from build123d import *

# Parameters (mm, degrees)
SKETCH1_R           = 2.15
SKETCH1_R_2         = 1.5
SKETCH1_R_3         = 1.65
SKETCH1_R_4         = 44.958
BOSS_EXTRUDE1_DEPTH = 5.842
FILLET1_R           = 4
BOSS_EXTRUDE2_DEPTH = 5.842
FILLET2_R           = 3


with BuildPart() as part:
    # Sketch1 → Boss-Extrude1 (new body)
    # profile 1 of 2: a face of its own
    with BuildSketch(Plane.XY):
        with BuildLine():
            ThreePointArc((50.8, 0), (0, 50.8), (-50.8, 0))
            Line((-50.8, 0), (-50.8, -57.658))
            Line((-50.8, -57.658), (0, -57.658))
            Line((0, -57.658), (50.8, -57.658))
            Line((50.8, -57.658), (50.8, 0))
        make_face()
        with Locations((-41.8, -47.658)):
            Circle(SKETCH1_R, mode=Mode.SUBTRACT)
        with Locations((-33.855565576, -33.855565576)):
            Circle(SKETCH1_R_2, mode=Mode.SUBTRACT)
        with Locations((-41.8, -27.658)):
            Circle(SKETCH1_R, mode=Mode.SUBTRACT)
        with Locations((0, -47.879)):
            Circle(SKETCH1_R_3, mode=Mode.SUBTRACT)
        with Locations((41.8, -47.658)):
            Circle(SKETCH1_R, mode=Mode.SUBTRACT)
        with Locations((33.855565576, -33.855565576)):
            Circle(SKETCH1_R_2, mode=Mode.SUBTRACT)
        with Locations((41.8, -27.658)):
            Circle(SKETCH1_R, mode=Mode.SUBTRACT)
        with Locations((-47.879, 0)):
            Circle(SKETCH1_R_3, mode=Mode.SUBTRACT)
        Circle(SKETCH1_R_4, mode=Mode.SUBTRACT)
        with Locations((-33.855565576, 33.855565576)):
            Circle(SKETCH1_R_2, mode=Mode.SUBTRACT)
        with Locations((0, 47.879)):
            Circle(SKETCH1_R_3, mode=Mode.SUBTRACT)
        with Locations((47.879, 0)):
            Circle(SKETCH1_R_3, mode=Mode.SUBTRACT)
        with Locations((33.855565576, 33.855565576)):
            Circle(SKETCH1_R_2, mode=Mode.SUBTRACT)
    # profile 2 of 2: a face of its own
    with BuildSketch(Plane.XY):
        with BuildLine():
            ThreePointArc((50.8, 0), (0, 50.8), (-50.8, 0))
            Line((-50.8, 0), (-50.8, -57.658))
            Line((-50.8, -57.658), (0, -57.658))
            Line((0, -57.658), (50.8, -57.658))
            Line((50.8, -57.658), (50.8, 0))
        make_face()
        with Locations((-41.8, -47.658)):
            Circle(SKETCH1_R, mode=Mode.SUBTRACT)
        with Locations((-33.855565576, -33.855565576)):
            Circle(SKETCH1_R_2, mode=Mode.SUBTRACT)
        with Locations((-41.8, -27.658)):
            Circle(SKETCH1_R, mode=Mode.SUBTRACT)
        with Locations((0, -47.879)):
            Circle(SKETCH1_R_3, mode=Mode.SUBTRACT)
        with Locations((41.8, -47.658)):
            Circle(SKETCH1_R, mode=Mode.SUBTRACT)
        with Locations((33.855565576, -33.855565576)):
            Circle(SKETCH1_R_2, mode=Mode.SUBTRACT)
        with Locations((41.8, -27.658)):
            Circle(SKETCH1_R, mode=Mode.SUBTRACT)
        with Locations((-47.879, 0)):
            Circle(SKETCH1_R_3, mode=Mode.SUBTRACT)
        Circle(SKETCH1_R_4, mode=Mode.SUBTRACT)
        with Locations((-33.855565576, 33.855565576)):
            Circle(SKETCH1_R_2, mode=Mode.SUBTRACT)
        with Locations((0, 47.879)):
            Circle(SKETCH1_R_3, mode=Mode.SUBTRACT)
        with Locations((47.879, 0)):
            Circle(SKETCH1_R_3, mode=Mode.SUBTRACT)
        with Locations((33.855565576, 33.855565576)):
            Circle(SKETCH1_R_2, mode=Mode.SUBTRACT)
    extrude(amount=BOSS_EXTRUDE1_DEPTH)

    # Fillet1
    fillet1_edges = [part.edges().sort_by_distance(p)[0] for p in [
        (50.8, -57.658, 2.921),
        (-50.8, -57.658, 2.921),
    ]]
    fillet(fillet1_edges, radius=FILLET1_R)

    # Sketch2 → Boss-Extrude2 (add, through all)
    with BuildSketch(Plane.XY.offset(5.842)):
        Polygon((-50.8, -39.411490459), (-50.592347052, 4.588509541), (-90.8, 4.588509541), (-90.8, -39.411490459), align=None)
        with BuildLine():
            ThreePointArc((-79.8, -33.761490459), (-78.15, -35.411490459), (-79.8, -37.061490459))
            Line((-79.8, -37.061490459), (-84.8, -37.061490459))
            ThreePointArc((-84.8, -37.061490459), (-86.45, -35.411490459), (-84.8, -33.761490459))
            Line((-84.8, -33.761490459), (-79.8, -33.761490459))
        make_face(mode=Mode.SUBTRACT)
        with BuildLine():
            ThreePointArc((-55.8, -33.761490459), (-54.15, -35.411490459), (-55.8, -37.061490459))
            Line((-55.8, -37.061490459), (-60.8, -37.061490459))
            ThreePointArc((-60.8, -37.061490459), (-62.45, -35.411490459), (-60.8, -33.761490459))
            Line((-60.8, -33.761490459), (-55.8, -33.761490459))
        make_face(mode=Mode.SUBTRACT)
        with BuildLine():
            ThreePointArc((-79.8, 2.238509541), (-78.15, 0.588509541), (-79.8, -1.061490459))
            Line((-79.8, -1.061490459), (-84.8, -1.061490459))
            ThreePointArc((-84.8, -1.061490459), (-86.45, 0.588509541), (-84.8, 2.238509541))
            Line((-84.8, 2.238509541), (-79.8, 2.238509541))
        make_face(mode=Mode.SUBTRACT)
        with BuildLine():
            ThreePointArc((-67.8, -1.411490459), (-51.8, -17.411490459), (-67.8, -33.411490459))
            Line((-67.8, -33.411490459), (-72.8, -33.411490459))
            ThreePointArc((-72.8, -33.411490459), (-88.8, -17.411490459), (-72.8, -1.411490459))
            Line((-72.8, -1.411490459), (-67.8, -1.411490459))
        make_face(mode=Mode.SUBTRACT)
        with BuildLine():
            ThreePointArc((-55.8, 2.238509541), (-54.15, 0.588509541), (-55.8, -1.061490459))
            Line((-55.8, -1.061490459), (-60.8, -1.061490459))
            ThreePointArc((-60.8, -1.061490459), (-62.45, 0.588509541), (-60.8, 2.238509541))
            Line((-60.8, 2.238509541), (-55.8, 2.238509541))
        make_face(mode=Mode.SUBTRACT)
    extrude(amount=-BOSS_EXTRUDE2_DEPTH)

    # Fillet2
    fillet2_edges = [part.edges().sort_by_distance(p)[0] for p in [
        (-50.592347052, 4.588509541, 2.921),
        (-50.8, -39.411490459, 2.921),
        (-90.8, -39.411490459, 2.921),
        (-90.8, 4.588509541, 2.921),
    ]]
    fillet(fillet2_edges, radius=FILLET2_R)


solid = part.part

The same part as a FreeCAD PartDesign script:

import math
import FreeCAD as App
import Part
import Sketcher
Q = App.Units.Quantity


def edges_at(feature, points):
    """Names of the edges that pass closest to the given points."""
    edges = feature.Shape.Edges
    near = lambda p: min(range(len(edges)), key=lambda i: edges[i].distToShape(Part.Vertex(*p))[0])
    return sorted({f"Edge{near(p) + 1}" for p in points})

doc = App.newDocument("Part")
body = doc.addObject("PartDesign::Body", "Body")

# Sketch on XY plane
sketch1 = body.newObject("Sketcher::SketchObject", "Sketch")
sketch1.AttachmentSupport = (doc.getObject("XY_Plane"), [""])
sketch1.MapMode = "FlatFace"
sketch1.addGeometry([
    Part.ArcOfCircle(Part.Circle(App.Vector(0, 0, 0), App.Vector(0, 0, 1), 50.8), math.radians(0), math.radians(180)),  # 0
    Part.LineSegment(App.Vector(-50.8, 0, 0), App.Vector(-50.8, -57.7, 0)),  # 1
    Part.LineSegment(App.Vector(-50.8, -57.7, 0), App.Vector(50.8, -57.7, 0)),  # 2
    Part.LineSegment(App.Vector(50.8, -57.7, 0), App.Vector(50.8, 0, 0)),  # 3
    Part.Circle(App.Vector(-41.8, -47.7, 0), App.Vector(0, 0, 1), 2.1),  # 4
    Part.Circle(App.Vector(-41.8, -27.7, 0), App.Vector(0, 0, 1), 2.1),  # 5
    Part.Circle(App.Vector(-33.9, -33.9, 0), App.Vector(0, 0, 1), 1.5),  # 6
    Part.Circle(App.Vector(0, -47.9, 0), App.Vector(0, 0, 1), 1.6),  # 7
    Part.Circle(App.Vector(41.8, -47.7, 0), App.Vector(0, 0, 1), 2.1),  # 8
    Part.Circle(App.Vector(33.9, -33.9, 0), App.Vector(0, 0, 1), 1.5),  # 9
    Part.Circle(App.Vector(41.8, -27.7, 0), App.Vector(0, 0, 1), 2.1),  # 10
    Part.Circle(App.Vector(-47.9, 0, 0), App.Vector(0, 0, 1), 1.6),  # 11
    Part.Circle(App.Vector(-33.9, 33.9, 0), App.Vector(0, 0, 1), 1.5),  # 12
    Part.Circle(App.Vector(0, 0, 0), App.Vector(0, 0, 1), 45),  # 13
    Part.Circle(App.Vector(47.9, 0, 0), App.Vector(0, 0, 1), 1.6),  # 14
    Part.Circle(App.Vector(0, 47.9, 0), App.Vector(0, 0, 1), 1.6),  # 15
    Part.Circle(App.Vector(33.9, 33.9, 0), App.Vector(0, 0, 1), 1.5),  # 16
], False)
sketch1.addConstraint([
    Sketcher.Constraint("Tangent", 0, 2, 1, 1),
    Sketcher.Constraint("Coincident", 1, 2, 2, 1),
    Sketcher.Constraint("Coincident", 2, 2, 3, 1),
    Sketcher.Constraint("Tangent", 3, 2, 0, 1),
    Sketcher.Constraint("Vertical", 1),
    Sketcher.Constraint("Horizontal", 2),
    Sketcher.Constraint("Vertical", 3),
    Sketcher.Constraint("Coincident", 0, 3, -1, 1),
    Sketcher.Constraint("Coincident", 13, 3, -1, 1),
    Sketcher.Constraint("Equal", 4, 5),
    Sketcher.Constraint("Equal", 5, 8),
    Sketcher.Constraint("Equal", 6, 9),
    Sketcher.Constraint("Equal", 8, 10),
    Sketcher.Constraint("Equal", 7, 11),
    Sketcher.Constraint("Equal", 9, 12),
    Sketcher.Constraint("Equal", 11, 14),
    Sketcher.Constraint("Equal", 14, 15),
    Sketcher.Constraint("Equal", 12, 16),
    Sketcher.Constraint("Symmetric", 9, 3, 12, 3, -1, 1),
    Sketcher.Constraint("Symmetric", 11, 3, 14, 3, -1, 1),
    Sketcher.Constraint("Symmetric", 7, 3, 15, 3, -1, 1),
    Sketcher.Constraint("Symmetric", 6, 3, 16, 3, -1, 1),
    Sketcher.Constraint("Symmetric", 4, 3, 8, 3, -2),
    Sketcher.Constraint("Symmetric", 6, 3, 9, 3, -2),
    Sketcher.Constraint("Symmetric", 5, 3, 10, 3, -2),
    Sketcher.Constraint("PointOnObject", 7, 3, -2),
    Sketcher.Constraint("PointOnObject", 11, 3, -1),
    Sketcher.Constraint("Vertical", 4, 3, 5, 3),
    Sketcher.Constraint("Diameter", 6, Q("3 mm")),
    Sketcher.Constraint("Diameter", 4, Q("4.3 mm")),
    Sketcher.Constraint("Diameter", 7, Q("3.3 mm")),
    Sketcher.Constraint("Radius", 0, Q("50.8 mm")),
    Sketcher.Constraint("Diameter", 13, Q("89.916 mm")),
    Sketcher.Constraint("DistanceY", 4, 3, 5, 3, Q("20 mm")),
    Sketcher.Constraint("DistanceX", 0, 2, 5, 3, Q("9 mm")),
    Sketcher.Constraint("DistanceY", 1, 2, 4, 3, Q("10 mm")),
    Sketcher.Constraint("DistanceY", 1, 2, 1, 1, Q("57.658 mm")),
    Sketcher.Constraint("DistanceY", 7, 3, -1, 1, Q("47.879 mm")),
    Sketcher.Constraint("DistanceX", 11, 3, -1, 1, Q("47.879 mm")),
    Sketcher.Constraint("DistanceX", 6, 3, 9, 3, Q("67.711131 mm")),
    Sketcher.Constraint("DistanceY", 6, 3, 12, 3, Q("67.711131 mm")),
])
pad1 = body.newObject("PartDesign::Pad", "Pad")
pad1.Profile = sketch1
pad1.Length = 5.842
doc.recompute()

fillet = body.newObject("PartDesign::Fillet", "Fillet")
fillet.Base = (pad1, edges_at(pad1, [(50.8, -57.658, 2.921), (-50.8, -57.658, 2.921)]))
fillet.Radius = 4

# Sketch on XY plane
sketch2 = body.newObject("Sketcher::SketchObject", "Sketch001")
sketch2.AttachmentSupport = (doc.getObject("XY_Plane"), [""])
sketch2.MapMode = "FlatFace"
sketch2.AttachmentOffset = App.Placement(App.Vector(0, 0, 5.842), App.Rotation())
sketch2.addGeometry([
    Part.LineSegment(App.Vector(-50.8, -39.4, 0), App.Vector(-50.6, 4.6, 0)),  # 0
    Part.LineSegment(App.Vector(-50.6, 4.6, 0), App.Vector(-90.8, 4.6, 0)),  # 1
    Part.LineSegment(App.Vector(-90.8, 4.6, 0), App.Vector(-90.8, -39.4, 0)),  # 2
    Part.LineSegment(App.Vector(-90.8, -39.4, 0), App.Vector(-50.8, -39.4, 0)),  # 3
    Part.LineSegment(App.Vector(-84.8, -33.8, 0), App.Vector(-79.8, -33.8, 0)),  # 4
    Part.ArcOfCircle(Part.Circle(App.Vector(-79.8, -35.4, 0), App.Vector(0, 0, 1), 1.6), math.radians(-90), math.radians(90)),  # 5
    Part.LineSegment(App.Vector(-79.8, -37.1, 0), App.Vector(-84.8, -37.1, 0)),  # 6
    Part.ArcOfCircle(Part.Circle(App.Vector(-84.8, -35.4, 0), App.Vector(0, 0, 1), 1.6), math.radians(90), math.radians(270)),  # 7
    Part.LineSegment(App.Vector(-60.8, -33.8, 0), App.Vector(-55.8, -33.8, 0)),  # 8
    Part.ArcOfCircle(Part.Circle(App.Vector(-55.8, -35.4, 0), App.Vector(0, 0, 1), 1.6), math.radians(-90), math.radians(90)),  # 9
    Part.LineSegment(App.Vector(-55.8, -37.1, 0), App.Vector(-60.8, -37.1, 0)),  # 10
    Part.ArcOfCircle(Part.Circle(App.Vector(-60.8, -35.4, 0), App.Vector(0, 0, 1), 1.6), math.radians(90), math.radians(270)),  # 11
    Part.LineSegment(App.Vector(-84.8, 2.2, 0), App.Vector(-79.8, 2.2, 0)),  # 12
    Part.ArcOfCircle(Part.Circle(App.Vector(-79.8, 0.6, 0), App.Vector(0, 0, 1), 1.6), math.radians(-90), math.radians(90)),  # 13
    Part.LineSegment(App.Vector(-79.8, -1.1, 0), App.Vector(-84.8, -1.1, 0)),  # 14
    Part.ArcOfCircle(Part.Circle(App.Vector(-84.8, 0.6, 0), App.Vector(0, 0, 1), 1.6), math.radians(90), math.radians(270)),  # 15
    Part.LineSegment(App.Vector(-72.8, -1.4, 0), App.Vector(-67.8, -1.4, 0)),  # 16
    Part.ArcOfCircle(Part.Circle(App.Vector(-67.8, -17.4, 0), App.Vector(0, 0, 1), 16), math.radians(-90), math.radians(90)),  # 17
    Part.LineSegment(App.Vector(-67.8, -33.4, 0), App.Vector(-72.8, -33.4, 0)),  # 18
    Part.ArcOfCircle(Part.Circle(App.Vector(-72.8, -17.4, 0), App.Vector(0, 0, 1), 16), math.radians(90), math.radians(270)),  # 19
    Part.LineSegment(App.Vector(-60.8, 2.2, 0), App.Vector(-55.8, 2.2, 0)),  # 20
    Part.ArcOfCircle(Part.Circle(App.Vector(-55.8, 0.6, 0), App.Vector(0, 0, 1), 1.6), math.radians(-90), math.radians(90)),  # 21
    Part.LineSegment(App.Vector(-55.8, -1.1, 0), App.Vector(-60.8, -1.1, 0)),  # 22
    Part.ArcOfCircle(Part.Circle(App.Vector(-60.8, 0.6, 0), App.Vector(0, 0, 1), 1.6), math.radians(90), math.radians(270)),  # 23
], False)
sketch2.addConstraint([
    Sketcher.Constraint("Coincident", 0, 2, 1, 1),
    Sketcher.Constraint("Coincident", 1, 2, 2, 1),
    Sketcher.Constraint("Coincident", 2, 2, 3, 1),
    Sketcher.Constraint("Coincident", 3, 2, 0, 1),
    Sketcher.Constraint("Tangent", 4, 2, 5, 2),
    Sketcher.Constraint("Tangent", 5, 1, 6, 1),
    Sketcher.Constraint("Tangent", 6, 2, 7, 2),
    Sketcher.Constraint("Tangent", 7, 1, 4, 1),
    Sketcher.Constraint("Tangent", 8, 2, 9, 2),
    Sketcher.Constraint("Tangent", 9, 1, 10, 1),
    Sketcher.Constraint("Tangent", 10, 2, 11, 2),
    Sketcher.Constraint("Tangent", 11, 1, 8, 1),
    Sketcher.Constraint("Tangent", 12, 2, 13, 2),
    Sketcher.Constraint("Tangent", 13, 1, 14, 1),
    Sketcher.Constraint("Tangent", 14, 2, 15, 2),
    Sketcher.Constraint("Tangent", 15, 1, 12, 1),
    Sketcher.Constraint("Tangent", 16, 2, 17, 2),
    Sketcher.Constraint("Tangent", 17, 1, 18, 1),
    Sketcher.Constraint("Tangent", 18, 2, 19, 2),
    Sketcher.Constraint("Tangent", 19, 1, 16, 1),
    Sketcher.Constraint("Tangent", 20, 2, 21, 2),
    Sketcher.Constraint("Tangent", 21, 1, 22, 1),
    Sketcher.Constraint("Tangent", 22, 2, 23, 2),
    Sketcher.Constraint("Tangent", 23, 1, 20, 1),
    Sketcher.Constraint("Horizontal", 1),
    Sketcher.Constraint("Vertical", 2),
    Sketcher.Constraint("Horizontal", 3),
    Sketcher.Constraint("Horizontal", 4),
    Sketcher.Constraint("Horizontal", 6),
    Sketcher.Constraint("Horizontal", 8),
    Sketcher.Constraint("Horizontal", 10),
    Sketcher.Constraint("Horizontal", 12),
    Sketcher.Constraint("Horizontal", 14),
    Sketcher.Constraint("Horizontal", 16),
    Sketcher.Constraint("Horizontal", 18),
    Sketcher.Constraint("Horizontal", 20),
    Sketcher.Constraint("Horizontal", 22),
    Sketcher.Constraint("Equal", 7, 9),
    Sketcher.Constraint("Equal", 11, 13),
    Sketcher.Constraint("Equal", 15, 21),
    Sketcher.Constraint("Horizontal", 7, 3, 9, 3),
    Sketcher.Constraint("Horizontal", 15, 3, 21, 3),
    Sketcher.Constraint("Vertical", 5, 3, 13, 3),
    Sketcher.Constraint("Vertical", 7, 3, 15, 3),
    Sketcher.Constraint("Vertical", 9, 3, 21, 3),
    Sketcher.Constraint("Vertical", 11, 3, 23, 3),
    Sketcher.Constraint("Equal", 6, 8),
    Sketcher.Constraint("Equal", 14, 16),
    Sketcher.Constraint("Radius", 17, Q("16 mm")),
    Sketcher.Constraint("DistanceX", 3, 1, 3, 2, Q("40 mm")),
    Sketcher.Constraint("DistanceX", 4, 1, 4, 2, Q("5 mm")),
    Sketcher.Constraint("DistanceY", 2, 2, 2, 1, Q("44 mm")),
    Sketcher.Constraint("Radius", 5, Q("1.65 mm")),
    Sketcher.Constraint("DistanceX", 5, 3, 9, 3, Q("24 mm")),
    Sketcher.Constraint("DistanceY", 5, 3, 13, 3, Q("36 mm")),
    Sketcher.Constraint("DistanceX", 17, 3, 11, 3, Q("7 mm")),
    Sketcher.Constraint("DistanceY", 11, 3, 17, 3, Q("18 mm")),
    Sketcher.Constraint("DistanceY", 21, 3, 0, 2, Q("4 mm")),
    Sketcher.Constraint("DistanceX", 1, 2, 15, 3, Q("6 mm")),
    Sketcher.Constraint("DistanceX", 5, 3, -1, 1, Q("79.8 mm")),
    Sketcher.Constraint("Distance", 0, Q("44.00049 mm")),
    Sketcher.Constraint("DistanceY", 5, 3, -1, 1, Q("35.41149 mm")),
])
pad2 = body.newObject("PartDesign::Pad", "Pad001")
pad2.Profile = sketch2
pad2.Length = 5.842
pad2.Reversed = True
doc.recompute()

fillet2 = body.newObject("PartDesign::Fillet", "Fillet001")
fillet2.Base = (pad2, edges_at(pad2, [
    (-50.592, 4.589, 2.921),
    (-50.8, -39.411, 2.921),
    (-90.8, -39.411, 2.921),
    (-90.8, 4.589, 2.921),
]))
fillet2.Radius = 3

doc.recompute()
